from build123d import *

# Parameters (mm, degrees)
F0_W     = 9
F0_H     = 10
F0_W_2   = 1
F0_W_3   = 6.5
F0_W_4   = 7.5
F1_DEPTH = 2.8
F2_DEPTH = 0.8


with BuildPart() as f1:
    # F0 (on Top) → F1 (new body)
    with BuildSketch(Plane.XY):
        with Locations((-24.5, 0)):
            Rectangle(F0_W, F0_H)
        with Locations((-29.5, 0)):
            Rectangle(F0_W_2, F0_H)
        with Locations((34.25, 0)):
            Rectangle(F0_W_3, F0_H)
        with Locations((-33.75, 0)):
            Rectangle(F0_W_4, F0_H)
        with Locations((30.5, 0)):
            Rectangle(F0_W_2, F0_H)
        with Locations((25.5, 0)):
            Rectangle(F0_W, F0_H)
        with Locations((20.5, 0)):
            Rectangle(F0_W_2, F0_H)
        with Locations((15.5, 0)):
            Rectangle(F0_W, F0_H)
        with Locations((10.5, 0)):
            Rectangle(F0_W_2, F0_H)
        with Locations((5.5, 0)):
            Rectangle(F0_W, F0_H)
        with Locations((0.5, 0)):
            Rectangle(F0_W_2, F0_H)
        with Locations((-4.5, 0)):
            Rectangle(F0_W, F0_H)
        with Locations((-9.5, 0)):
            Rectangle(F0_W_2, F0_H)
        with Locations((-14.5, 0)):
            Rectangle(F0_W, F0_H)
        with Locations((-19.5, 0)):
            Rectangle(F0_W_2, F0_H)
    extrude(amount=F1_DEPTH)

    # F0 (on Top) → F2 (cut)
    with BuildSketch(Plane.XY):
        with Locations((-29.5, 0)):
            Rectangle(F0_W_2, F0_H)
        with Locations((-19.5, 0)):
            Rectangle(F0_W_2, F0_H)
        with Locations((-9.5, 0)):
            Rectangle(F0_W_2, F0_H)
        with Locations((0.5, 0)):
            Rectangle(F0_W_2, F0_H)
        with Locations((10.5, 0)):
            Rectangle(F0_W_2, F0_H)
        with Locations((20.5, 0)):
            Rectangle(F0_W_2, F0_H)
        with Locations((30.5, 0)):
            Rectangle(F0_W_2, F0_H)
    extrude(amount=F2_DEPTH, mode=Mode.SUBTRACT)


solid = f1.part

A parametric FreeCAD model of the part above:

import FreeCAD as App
import Part
import Sketcher
Q = App.Units.Quantity


def add_polygon(sketch, points):
    """Adds a closed chain of lines whose ends are joined by coincident constraints."""
    first, n = sketch.GeometryCount, len(points)
    for a, b in zip(points, points[1:] + points[:1]):
        sketch.addGeometry(Part.LineSegment(App.Vector(*a, 0), App.Vector(*b, 0)), False)
    for i in range(n):
        sketch.addConstraint(Sketcher.Constraint("Coincident", first + i, 2, first + (i + 1) % n, 1))

doc = App.newDocument("Part")
body = doc.addObject("PartDesign::Body", "Body")

# Sketch on XY plane
sketch1 = body.newObject("Sketcher::SketchObject", "Sketch")
sketch1.AttachmentSupport = (doc.getObject("XY_Plane"), [""])
sketch1.MapMode = "FlatFace"
add_polygon(sketch1, [(-38, 5), (-38, -5), (38, -5), (38, 5)])  # lines 0-3
sketch1.addConstraint([
    Sketcher.Constraint("Vertical", 0),
    Sketcher.Constraint("Horizontal", 1),
    Sketcher.Constraint("Vertical", 2),
    Sketcher.Constraint("Horizontal", 3),
    Sketcher.Constraint("Symmetric", 0, 2, 2, 2, -1, 1),
    Sketcher.Constraint("DistanceX", 1, 1, 1, 2, Q("75 mm")),
    Sketcher.Constraint("DistanceY", 0, 2, 0, 1, Q("10 mm")),
])
pad1 = body.newObject("PartDesign::Pad", "Pad")
pad1.Profile = sketch1
pad1.Length = 2.8

# Sketch on XY plane
sketch2 = body.newObject("Sketcher::SketchObject", "Sketch001")
sketch2.AttachmentSupport = (doc.getObject("XY_Plane"), [""])
sketch2.MapMode = "FlatFace"
add_polygon(sketch2, [(-30, 5), (-30, -5), (-29, -5), (-29, 5)])  # lines 0-3
add_polygon(sketch2, [(-20, 5), (-20, -5), (-19, -5), (-19, 5)])  # lines 4-7
add_polygon(sketch2, [(-10, 5), (-10, -5), (-9, -5), (-9, 5)])  # lines 8-11
add_polygon(sketch2, [(0, 5), (0, -5), (1, -5), (1, 5)])  # lines 12-15
add_polygon(sketch2, [(10, 5), (10, -5), (11, -5), (11, 5)])  # lines 16-19
add_polygon(sketch2, [(20, 5), (20, -5), (21, -5), (21, 5)])  # lines 20-23
add_polygon(sketch2, [(30, 5), (30, -5), (31, -5), (31, 5)])  # lines 24-27
sketch2.addConstraint([
    Sketcher.Constraint("Vertical", 0),
    Sketcher.Constraint("Horizontal", 1),
    Sketcher.Constraint("Vertical", 2),
    Sketcher.Constraint("Horizontal", 3),
    Sketcher.Constraint("Vertical", 4),
    Sketcher.Constraint("Horizontal", 5),
    Sketcher.Constraint("Vertical", 6),
    Sketcher.Constraint("Horizontal", 7),
    Sketcher.Constraint("Vertical", 8),
    Sketcher.Constraint("Horizontal", 9),
    Sketcher.Constraint("Vertical", 10),
    Sketcher.Constraint("Horizontal", 11),
    Sketcher.Constraint("Vertical", 12),
    Sketcher.Constraint("Horizontal", 13),
    Sketcher.Constraint("Vertical", 14),
    Sketcher.Constraint("Horizontal", 15),
    Sketcher.Constraint("Vertical", 16),
    Sketcher.Constraint("Horizontal", 17),
    Sketcher.Constraint("Vertical", 18),
    Sketcher.Constraint("Horizontal", 19),
    Sketcher.Constraint("Vertical", 20),
    Sketcher.Constraint("Horizontal", 21),
    Sketcher.Constraint("Vertical", 22),
    Sketcher.Constraint("Horizontal", 23),
    Sketcher.Constraint("Vertical", 24),
    Sketcher.Constraint("Horizontal", 25),
    Sketcher.Constraint("Vertical", 26),
    Sketcher.Constraint("Horizontal", 27),
    Sketcher.Constraint("Symmetric", 12, 2, 15, 2, -1, 1),
    Sketcher.Constraint("Symmetric", 11, 2, 16, 2, -1, 1),
    Sketcher.Constraint("Symmetric", 7, 2, 20, 2, -1, 1),
    Sketcher.Constraint("Symmetric", 3, 2, 24, 2, -1, 1),
    Sketcher.Constraint("Horizontal", 1, 2, 4, 2),
    Sketcher.Constraint("Horizontal", 3, 2, 6, 2),
    Sketcher.Constraint("Horizontal", 5, 2, 8, 2),
    Sketcher.Constraint("Horizontal", 7, 2, 10, 2),
    Sketcher.Constraint("Horizontal", 9, 2, 12, 2),
    Sketcher.Constraint("Horizontal", 11, 2, 14, 2),
    Sketcher.Constraint("Horizontal", 15, 2, 18, 2),
    Sketcher.Constraint("Horizontal", 19, 2, 22, 2),
    Sketcher.Constraint("Horizontal", 23, 2, 26, 2),
    Sketcher.Constraint("Equal", 3, 5),
    Sketcher.Constraint("Equal", 7, 9),
    Sketcher.Constraint("Equal", 11, 13),
    Sketcher.Constraint("Equal", 15, 17),
    Sketcher.Constraint("Equal", 19, 21),
    Sketcher.Constraint("Equal", 23, 25),
    Sketcher.Constraint("DistanceX", 1, 1, 1, 2, Q("1 mm")),
    Sketcher.Constraint("DistanceY", 0, 2, 0, 1, Q("10 mm")),
    Sketcher.Constraint("DistanceX", 0, 2, -1, 1, Q("30 mm")),
    Sketcher.Constraint("DistanceX", 4, 2, -1, 1, Q("20 mm")),
    Sketcher.Constraint("DistanceX", 8, 2, -1, 1, Q("10 mm")),
])
pocket1 = body.newObject("PartDesign::Pocket", "Pocket")
pocket1.Profile = sketch2
pocket1.Length = 0.8
pocket1.Reversed = True

doc.recompute()
